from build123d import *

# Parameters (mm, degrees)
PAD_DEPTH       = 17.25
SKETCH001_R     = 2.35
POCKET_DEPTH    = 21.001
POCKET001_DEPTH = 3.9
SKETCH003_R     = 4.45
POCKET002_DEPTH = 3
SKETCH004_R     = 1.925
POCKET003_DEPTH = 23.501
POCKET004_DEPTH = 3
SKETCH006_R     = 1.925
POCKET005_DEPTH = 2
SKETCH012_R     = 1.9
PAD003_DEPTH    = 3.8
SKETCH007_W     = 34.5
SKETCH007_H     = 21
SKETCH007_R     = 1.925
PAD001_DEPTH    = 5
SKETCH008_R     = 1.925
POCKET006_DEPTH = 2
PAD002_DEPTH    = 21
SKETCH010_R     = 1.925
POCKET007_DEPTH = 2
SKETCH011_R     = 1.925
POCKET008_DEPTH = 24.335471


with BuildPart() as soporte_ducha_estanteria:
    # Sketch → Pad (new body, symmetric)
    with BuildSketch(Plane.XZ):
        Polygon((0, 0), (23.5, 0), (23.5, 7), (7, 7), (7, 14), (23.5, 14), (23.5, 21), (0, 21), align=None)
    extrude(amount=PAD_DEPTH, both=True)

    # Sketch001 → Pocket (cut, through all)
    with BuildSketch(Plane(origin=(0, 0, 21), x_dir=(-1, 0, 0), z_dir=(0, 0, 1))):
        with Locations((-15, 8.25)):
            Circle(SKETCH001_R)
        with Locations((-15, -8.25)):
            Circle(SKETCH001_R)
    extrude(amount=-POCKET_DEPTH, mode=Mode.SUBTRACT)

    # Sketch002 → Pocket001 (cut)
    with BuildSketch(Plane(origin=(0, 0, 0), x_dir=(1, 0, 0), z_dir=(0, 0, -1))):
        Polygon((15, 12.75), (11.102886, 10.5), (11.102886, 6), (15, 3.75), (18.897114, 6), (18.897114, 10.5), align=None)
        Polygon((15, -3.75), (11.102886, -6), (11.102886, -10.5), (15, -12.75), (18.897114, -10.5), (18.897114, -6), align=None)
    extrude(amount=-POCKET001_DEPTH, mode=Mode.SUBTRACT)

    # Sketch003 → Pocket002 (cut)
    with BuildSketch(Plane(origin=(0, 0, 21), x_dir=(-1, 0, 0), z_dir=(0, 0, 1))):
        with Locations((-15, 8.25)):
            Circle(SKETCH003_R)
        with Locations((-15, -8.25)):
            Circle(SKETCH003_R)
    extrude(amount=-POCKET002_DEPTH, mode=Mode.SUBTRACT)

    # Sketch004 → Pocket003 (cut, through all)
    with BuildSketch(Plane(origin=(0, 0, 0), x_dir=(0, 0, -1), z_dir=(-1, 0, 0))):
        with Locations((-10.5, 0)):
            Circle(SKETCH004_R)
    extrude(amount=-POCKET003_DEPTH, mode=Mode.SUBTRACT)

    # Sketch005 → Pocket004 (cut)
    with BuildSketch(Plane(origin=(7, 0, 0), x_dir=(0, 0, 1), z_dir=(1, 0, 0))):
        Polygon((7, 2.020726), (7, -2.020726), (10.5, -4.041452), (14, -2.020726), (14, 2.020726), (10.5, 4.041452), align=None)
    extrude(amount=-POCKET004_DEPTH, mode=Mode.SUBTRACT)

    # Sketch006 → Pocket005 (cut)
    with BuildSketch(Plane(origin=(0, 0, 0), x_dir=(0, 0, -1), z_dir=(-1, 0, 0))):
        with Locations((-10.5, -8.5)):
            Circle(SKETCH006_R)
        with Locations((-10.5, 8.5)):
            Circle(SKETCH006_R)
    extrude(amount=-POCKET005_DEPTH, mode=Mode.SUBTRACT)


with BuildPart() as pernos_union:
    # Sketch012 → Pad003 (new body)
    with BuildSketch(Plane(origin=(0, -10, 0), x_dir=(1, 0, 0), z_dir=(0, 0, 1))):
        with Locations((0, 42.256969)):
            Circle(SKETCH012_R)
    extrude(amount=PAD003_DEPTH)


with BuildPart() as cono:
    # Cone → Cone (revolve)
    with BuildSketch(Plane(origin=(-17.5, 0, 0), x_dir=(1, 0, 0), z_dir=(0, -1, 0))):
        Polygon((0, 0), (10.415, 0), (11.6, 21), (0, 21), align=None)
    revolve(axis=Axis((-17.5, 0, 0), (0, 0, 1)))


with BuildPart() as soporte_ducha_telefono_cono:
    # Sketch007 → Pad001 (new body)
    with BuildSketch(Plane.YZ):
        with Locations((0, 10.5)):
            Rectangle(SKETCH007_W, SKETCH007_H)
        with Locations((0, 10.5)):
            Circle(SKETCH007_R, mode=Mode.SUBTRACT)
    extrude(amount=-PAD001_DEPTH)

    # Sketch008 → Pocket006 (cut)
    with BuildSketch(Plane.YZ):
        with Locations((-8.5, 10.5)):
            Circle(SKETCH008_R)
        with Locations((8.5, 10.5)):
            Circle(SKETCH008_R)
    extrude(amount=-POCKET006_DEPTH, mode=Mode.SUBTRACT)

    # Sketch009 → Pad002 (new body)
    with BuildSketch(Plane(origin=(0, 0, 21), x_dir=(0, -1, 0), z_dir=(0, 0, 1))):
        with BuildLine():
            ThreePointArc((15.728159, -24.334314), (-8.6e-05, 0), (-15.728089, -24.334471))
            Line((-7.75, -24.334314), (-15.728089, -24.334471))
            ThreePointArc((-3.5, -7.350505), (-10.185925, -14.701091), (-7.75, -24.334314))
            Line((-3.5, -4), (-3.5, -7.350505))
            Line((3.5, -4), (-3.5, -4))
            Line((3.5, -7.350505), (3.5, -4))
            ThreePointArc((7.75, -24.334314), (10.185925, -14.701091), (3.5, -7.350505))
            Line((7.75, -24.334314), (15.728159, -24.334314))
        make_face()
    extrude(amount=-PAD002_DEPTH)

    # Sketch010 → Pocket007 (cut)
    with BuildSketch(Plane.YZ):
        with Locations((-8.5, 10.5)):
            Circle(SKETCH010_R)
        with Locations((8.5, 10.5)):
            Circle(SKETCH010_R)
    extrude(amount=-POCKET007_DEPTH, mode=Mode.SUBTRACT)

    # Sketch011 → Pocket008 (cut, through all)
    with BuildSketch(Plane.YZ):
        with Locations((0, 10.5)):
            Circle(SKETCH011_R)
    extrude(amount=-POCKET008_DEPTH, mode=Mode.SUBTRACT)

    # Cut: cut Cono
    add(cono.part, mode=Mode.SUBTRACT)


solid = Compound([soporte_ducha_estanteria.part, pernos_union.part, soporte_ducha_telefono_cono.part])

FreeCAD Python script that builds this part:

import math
import FreeCAD as App
import Part
import Sketcher
Q = App.Units.Quantity

doc = App.newDocument("Part")
body = doc.addObject("PartDesign::Body", "Body")

sketch1 = body.newObject("Sketcher::SketchObject", "Sketch")
sketch1.AttachmentSupport = (doc.getObject("XZ_Plane"), [""])
sketch1.MapMode = "FlatFace"
sketch1.addGeometry([
    Part.LineSegment(App.Vector(0, 0, 0), App.Vector(24, 0, 0)),
    Part.LineSegment(App.Vector(24, 0, 0), App.Vector(24, 7, 0)),
    Part.LineSegment(App.Vector(24, 7, 0), App.Vector(7, 7, 0)),
    Part.LineSegment(App.Vector(7, 7, 0), App.Vector(7, 14, 0)),
    Part.LineSegment(App.Vector(7, 14, 0), App.Vector(24, 14, 0)),
    Part.LineSegment(App.Vector(24, 14, 0), App.Vector(24, 21, 0)),
    Part.LineSegment(App.Vector(24, 21, 0), App.Vector(0, 21, 0)),
    Part.LineSegment(App.Vector(0, 21, 0), App.Vector(0, 0, 0)),
], False)
sketch1.addConstraint([
    Sketcher.Constraint("Coincident", 0, 2, 1, 1),
    Sketcher.Constraint("Coincident", 1, 2, 2, 1),
    Sketcher.Constraint("Coincident", 2, 2, 3, 1),
    Sketcher.Constraint("Coincident", 3, 2, 4, 1),
    Sketcher.Constraint("Coincident", 4, 2, 5, 1),
    Sketcher.Constraint("Coincident", 5, 2, 6, 1),
    Sketcher.Constraint("Coincident", 6, 2, 7, 1),
    Sketcher.Constraint("Coincident", 7, 2, 0, 1),
    Sketcher.Constraint("Horizontal", 0),
    Sketcher.Constraint("Vertical", 1),
    Sketcher.Constraint("Horizontal", 2),
    Sketcher.Constraint("Vertical", 3),
    Sketcher.Constraint("Horizontal", 4),
    Sketcher.Constraint("Vertical", 5),
    Sketcher.Constraint("Horizontal", 6),
    Sketcher.Constraint("Vertical", 7),
    Sketcher.Constraint("Coincident", 7, 2, -1, 1),
    Sketcher.Constraint("Vertical", 1, 2, 4, 2),
    Sketcher.Constraint("Equal", 1, 3),
    Sketcher.Constraint("Equal", 3, 5),
    Sketcher.Constraint("DistanceY", 1, 1, 1, 2, Q("7 mm")),
    Sketcher.Constraint("DistanceX", 0, 1, 0, 2, Q("23.5 mm")),
    Sketcher.Constraint("DistanceX", 2, 2, 2, 1, Q("16.5 mm")),
])
pad1 = body.newObject("PartDesign::Pad", "Pad")
pad1.Profile = sketch1
pad1.Length = 34.5
pad1.Midplane = True

sketch2 = body.newObject("Sketcher::SketchObject", "Sketch001")
sketch2.AttachmentSupport = (doc.getObject("XY_Plane"), [""])
sketch2.MapMode = "FlatFace"
sketch2.AttachmentOffset = App.Placement(App.Vector(0, 0, 21), App.Rotation())
sketch2.addGeometry([
    Part.Circle(App.Vector(15, -8.2, 0), App.Vector(0, 0, 1), 2.4),
    Part.Circle(App.Vector(15, 8.2, 0), App.Vector(0, 0, 1), 2.4),
], False)
sketch2.addConstraint([
    Sketcher.Constraint("Equal", 0, 1),
    Sketcher.Constraint("Symmetric", 0, 3, 1, 3, -1),
    Sketcher.Constraint("Diameter", 0, Q("4.7 mm")),
    Sketcher.Constraint("DistanceX", -1, 1, 0, 3, Q("15 mm")),
    Sketcher.Constraint("DistanceY", 0, 3, 1, 3, Q("16.5 mm")),
])
pocket1 = body.newObject("PartDesign::Pocket", "Pocket")
pocket1.Profile = sketch2
pocket1.Type = "ThroughAll"

sketch3 = body.newObject("Sketcher::SketchObject", "Sketch002")
sketch3.AttachmentSupport = (doc.getObject("XY_Plane"), [""])
sketch3.MapMode = "FlatFace"
sketch3.addGeometry([
    Part.LineSegment(App.Vector(15, -12.8, 0), App.Vector(11.1, -10.5, 0)),
    Part.LineSegment(App.Vector(11.1, -10.5, 0), App.Vector(11.1, -6, 0)),
    Part.LineSegment(App.Vector(11.1, -6, 0), App.Vector(15, -3.8, 0)),
    Part.LineSegment(App.Vector(15, -3.8, 0), App.Vector(18.9, -6, 0)),
    Part.LineSegment(App.Vector(18.9, -6, 0), App.Vector(18.9, -10.5, 0)),
    Part.LineSegment(App.Vector(18.9, -10.5, 0), App.Vector(15, -12.8, 0)),
    Part.LineSegment(App.Vector(15, 3.8, 0), App.Vector(11.1, 6, 0)),
    Part.LineSegment(App.Vector(11.1, 6, 0), App.Vector(11.1, 10.5, 0)),
    Part.LineSegment(App.Vector(11.1, 10.5, 0), App.Vector(15, 12.8, 0)),
    Part.LineSegment(App.Vector(15, 12.8, 0), App.Vector(18.9, 10.5, 0)),
    Part.LineSegment(App.Vector(18.9, 10.5, 0), App.Vector(18.9, 6, 0)),
    Part.LineSegment(App.Vector(18.9, 6, 0), App.Vector(15, 3.8, 0)),
], False)
sketch3.addConstraint([
    Sketcher.Constraint("Coincident", 0, 2, 1, 1),
    Sketcher.Constraint("Coincident", 1, 2, 2, 1),
    Sketcher.Constraint("Coincident", 2, 2, 3, 1),
    Sketcher.Constraint("Coincident", 3, 2, 4, 1),
    Sketcher.Constraint("Coincident", 4, 2, 5, 1),
    Sketcher.Constraint("Coincident", 5, 2, 0, 1),
    Sketcher.Constraint("Coincident", 6, 2, 7, 1),
    Sketcher.Constraint("Coincident", 7, 2, 8, 1),
    Sketcher.Constraint("Coincident", 8, 2, 9, 1),
    Sketcher.Constraint("Coincident", 9, 2, 10, 1),
    Sketcher.Constraint("Coincident", 10, 2, 11, 1),
    Sketcher.Constraint("Coincident", 11, 2, 6, 1),
    Sketcher.Constraint("Vertical", 1),
    Sketcher.Constraint("Vertical", 4),
    Sketcher.Constraint("Vertical", 7),
    Sketcher.Constraint("Vertical", 10),
    Sketcher.Constraint("Symmetric", 1, 2, 6, 2, -1),
    Sketcher.Constraint("Symmetric", 5, 2, 8, 2, -1),
    Sketcher.Constraint("Symmetric", 4, 2, 9, 2, -1),
    Sketcher.Constraint("Symmetric", 2, 2, 11, 2, -1),
    Sketcher.Constraint("Parallel", 0, 3),
    Sketcher.Constraint("Parallel", 2, 5),
    Sketcher.Constraint("Parallel", 3, 6),
    Sketcher.Constraint("Parallel", 5, 8),
    Sketcher.Constraint("Parallel", 8, 11),
    Sketcher.Constraint("Horizontal", 1, 2, 3, 2),
    Sketcher.Constraint("Horizontal", 0, 2, 4, 2),
    Sketcher.Constraint("Angle", 0, Q("149.999998 deg")),
    Sketcher.Constraint("DistanceY", 1, 1, 1, 2, Q("4.5 mm")),
    Sketcher.Constraint("DistanceY", 1, 2, -1, 1, Q("6 mm")),
    Sketcher.Constraint("DistanceX", -1, 1, 2, 2, Q("15 mm")),
    Sketcher.Constraint("DistanceY", 5, 2, 2, 2, Q("9 mm")),
])
pocket2 = body.newObject("PartDesign::Pocket", "Pocket001")
pocket2.Profile = sketch3
pocket2.Length = 3.9
pocket2.Reversed = True

sketch4 = body.newObject("Sketcher::SketchObject", "Sketch003")
sketch4.AttachmentSupport = (doc.getObject("XY_Plane"), [""])
sketch4.MapMode = "FlatFace"
sketch4.AttachmentOffset = App.Placement(App.Vector(0, 0, 21), App.Rotation())
sketch4.addGeometry([
    Part.Circle(App.Vector(15, -8.2, 0), App.Vector(0, 0, 1), 4.5),
    Part.Circle(App.Vector(15, 8.2, 0), App.Vector(0, 0, 1), 4.5),
], False)
sketch4.addConstraint([
    Sketcher.Constraint("Equal", 0, 1),
    Sketcher.Constraint("Symmetric", 0, 3, 1, 3, -1),
    Sketcher.Constraint("Diameter", 0, Q("8.9 mm")),
    Sketcher.Constraint("DistanceX", -1, 1, 0, 3, Q("15 mm")),
    Sketcher.Constraint("DistanceY", 0, 3, 1, 3, Q("16.5 mm")),
])
pocket3 = body.newObject("PartDesign::Pocket", "Pocket002")
pocket3.Profile = sketch4
pocket3.Length = 3

sketch5 = body.newObject("Sketcher::SketchObject", "Sketch004")
sketch5.AttachmentSupport = (doc.getObject("YZ_Plane"), [""])
sketch5.MapMode = "FlatFace"
sketch5.addGeometry(Part.Circle(App.Vector(0, 10.5, 0), App.Vector(0, 0, 1), 1.9), False)
sketch5.addConstraint([
    Sketcher.Constraint("PointOnObject", 0, 3, -2),
    Sketcher.Constraint("Diameter", 0, Q("3.85 mm")),
    Sketcher.Constraint("DistanceY", -1, 1, 0, 3, Q("10.5 mm")),
])
pocket4 = body.newObject("PartDesign::Pocket", "Pocket003")
pocket4.Profile = sketch5
pocket4.Type = "ThroughAll"
pocket4.Reversed = True

sketch6 = body.newObject("Sketcher::SketchObject", "Sketch005")
sketch6.AttachmentSupport = (doc.getObject("YZ_Plane"), [""])
sketch6.MapMode = "FlatFace"
sketch6.AttachmentOffset = App.Placement(App.Vector(0, 0, 7), App.Rotation())
sketch6.addGeometry([
    Part.LineSegment(App.Vector(-2, 7, 0), App.Vector(2, 7, 0)),
    Part.LineSegment(App.Vector(2, 7, 0), App.Vector(4, 10.5, 0)),
    Part.LineSegment(App.Vector(4, 10.5, 0), App.Vector(2, 14, 0)),
    Part.LineSegment(App.Vector(2, 14, 0), App.Vector(-2, 14, 0)),
    Part.LineSegment(App.Vector(-2, 14, 0), App.Vector(-4, 10.5, 0)),
    Part.LineSegment(App.Vector(-4, 10.5, 0), App.Vector(-2, 7, 0)),
], False)
sketch6.addConstraint([
    Sketcher.Constraint("Coincident", 0, 2, 1, 1),
    Sketcher.Constraint("Coincident", 1, 2, 2, 1),
    Sketcher.Constraint("Coincident", 2, 2, 3, 1),
    Sketcher.Constraint("Coincident", 3, 2, 4, 1),
    Sketcher.Constraint("Coincident", 4, 2, 5, 1),
    Sketcher.Constraint("Coincident", 5, 2, 0, 1),
    Sketcher.Constraint("Horizontal", 0),
    Sketcher.Constraint("Horizontal", 3),
    Sketcher.Constraint("Symmetric", 1, 2, 4, 2, -2),
    Sketcher.Constraint("Parallel", 1, 4),
    Sketcher.Constraint("Parallel", 2, 5),
    Sketcher.Constraint("Vertical", 0, 2, 2, 2),
    Sketcher.Constraint("Vertical", 3, 2, 5, 2),
    Sketcher.Constraint("Angle", 1, Q("59.999999 deg")),
    Sketcher.Constraint("DistanceY", -1, 1, 0, 2, Q("7 mm")),
    Sketcher.Constraint("DistanceY", -1, 1, 2, 2, Q("14 mm")),
    Sketcher.Constraint("DistanceX", 0, 1, 0, 2, Q("4.041452 mm")),
])
pocket5 = body.newObject("PartDesign::Pocket", "Pocket004")
pocket5.Profile = sketch6
pocket5.Length = 3

sketch7 = body.newObject("Sketcher::SketchObject", "Sketch006")
sketch7.AttachmentSupport = (doc.getObject("YZ_Plane"), [""])
sketch7.MapMode = "FlatFace"
sketch7.addGeometry([
    Part.Circle(App.Vector(8.5, 10.5, 0), App.Vector(0, 0, 1), 1.9),
    Part.Circle(App.Vector(-8.5, 10.5, 0), App.Vector(0, 0, 1), 1.9),
], False)
sketch7.addConstraint([
    Sketcher.Constraint("Equal", 0, 1),
    Sketcher.Constraint("Symmetric", 0, 3, 1, 3, -2),
    Sketcher.Constraint("Diameter", 0, Q("3.85 mm")),
    Sketcher.Constraint("DistanceX", 1, 3, 0, 3, Q("17 mm")),
    Sketcher.Constraint("DistanceY", -1, 1, 0, 3, Q("10.5 mm")),
])
pocket6 = body.newObject("PartDesign::Pocket", "Pocket005")
pocket6.Profile = sketch7
pocket6.Length = 2
pocket6.Reversed = True
body2 = doc.addObject("PartDesign::Body", "Body001")

sketch8 = body2.newObject("Sketcher::SketchObject", "Sketch007")
sketch8.AttachmentSupport = (doc.getObject("XY_Plane001"), [""])
sketch8.MapMode = "FlatFace"
sketch8.addGeometry(Part.Circle(App.Vector(0, 32.3, 0), App.Vector(0, 0, 1), 1.9), False)
sketch8.addConstraint([
    Sketcher.Constraint("PointOnObject", 0, 3, -2),
    Sketcher.Constraint("Diameter", 0, Q("3.8 mm")),
    Sketcher.Constraint("DistanceY", -1, 1, 0, 3, Q("32.256969 mm")),
])
pad2 = body2.newObject("PartDesign::Pad", "Pad001")
pad2.Profile = sketch8
pad2.Length = 3.8
body3 = doc.addObject("PartDesign::Body", "Body002")

sketch9 = body3.newObject("Sketcher::SketchObject", "Sketch008")
sketch9.AttachmentSupport = (doc.getObject("XZ_Plane002"), [""])
sketch9.MapMode = "FlatFace"
sketch9.addGeometry([
    Part.LineSegment(App.Vector(-18, 0, 0), App.Vector(-7, 0, 0)),
    Part.LineSegment(App.Vector(-7, 0, 0), App.Vector(-6, 21, 0)),
    Part.LineSegment(App.Vector(-6, 21, 0), App.Vector(-18, 21, 0)),
    Part.LineSegment(App.Vector(-18, 21, 0), App.Vector(-18, 0, 0)),
], False)
sketch9.addGeometry(Part.LineSegment(App.Vector(-18, 0, 0), App.Vector(-18, 21, 0)), True)
sketch9.addConstraint([
    Sketcher.Constraint("Coincident", 0, 2, 1, 1),
    Sketcher.Constraint("Coincident", 1, 2, 2, 1),
    Sketcher.Constraint("Coincident", 2, 2, 3, 1),
    Sketcher.Constraint("Coincident", 3, 2, 0, 1),
    Sketcher.Constraint("Horizontal", 0),
    Sketcher.Constraint("Horizontal", 2),
    Sketcher.Constraint("Vertical", 3),
    Sketcher.Constraint("Vertical", 4),
    Sketcher.Constraint("Coincident", 4, 1, 3, 2),
    Sketcher.Constraint("PointOnObject", 0, 2, -1),
    Sketcher.Constraint("Horizontal", 1, 2, 4, 2),
    Sketcher.Constraint("DistanceY", 3, 2, 3, 1, Q("21 mm")),
    Sketcher.Constraint("DistanceX", 2, 2, 2, 1, Q("11.6 mm")),
    Sketcher.Constraint("DistanceX", 1, 2, -1, 1, Q("5.9 mm")),
    Sketcher.Constraint("DistanceX", 0, 1, 0, 2, Q("10.415 mm")),
])
revolution = body3.newObject("PartDesign::Revolution", "Revolution")
revolution.Profile = sketch9
revolution.ReferenceAxis = (sketch9, ["Axis0"])
revolution.Angle = 360
body4 = doc.addObject("PartDesign::Body", "Body003")

sketch10 = body4.newObject("Sketcher::SketchObject", "Sketch009")
sketch10.AttachmentSupport = (doc.getObject("YZ_Plane003"), [""])
sketch10.MapMode = "FlatFace"
sketch10.addGeometry([
    Part.LineSegment(App.Vector(-17.2, 21, 0), App.Vector(-17.2, 0, 0)),
    Part.LineSegment(App.Vector(-17.2, 0, 0), App.Vector(17.2, 0, 0)),
    Part.LineSegment(App.Vector(17.2, 0, 0), App.Vector(17.2, 21, 0)),
    Part.LineSegment(App.Vector(17.2, 21, 0), App.Vector(-17.2, 21, 0)),
    Part.Circle(App.Vector(0, 10.5, 0), App.Vector(0, 0, 1), 1.9),
], False)
sketch10.addConstraint([
    Sketcher.Constraint("Coincident", 0, 2, 1, 1),
    Sketcher.Constraint("Coincident", 1, 2, 2, 1),
    Sketcher.Constraint("Coincident", 2, 2, 3, 1),
    Sketcher.Constraint("Coincident", 3, 2, 0, 1),
    Sketcher.Constraint("Vertical", 0),
    Sketcher.Constraint("Horizontal", 1),
    Sketcher.Constraint("Vertical", 2),
    Sketcher.Constraint("Horizontal", 3),
    Sketcher.Constraint("Symmetric", 0, 2, 1, 2, -1, 1),
    Sketcher.Constraint("PointOnObject", 4, 3, -2),
    Sketcher.Constraint("Diameter", 4, Q("3.85 mm")),
    Sketcher.Constraint("DistanceY", 0, 2, 0, 1, Q("21 mm")),
    Sketcher.Constraint("DistanceX", 1, 1, 1, 2, Q("34.5 mm")),
    Sketcher.Constraint("DistanceY", -1, 1, 4, 3, Q("10.5 mm")),
])
pad3 = body4.newObject("PartDesign::Pad", "Pad002")
pad3.Profile = sketch10
pad3.Length = 5
pad3.Reversed = True

sketch11 = body4.newObject("Sketcher::SketchObject", "Sketch010")
sketch11.AttachmentSupport = (doc.getObject("YZ_Plane003"), [""])
sketch11.MapMode = "FlatFace"
sketch11.addGeometry([
    Part.Circle(App.Vector(-8.5, 10.5, 0), App.Vector(0, 0, 1), 1.9),
    Part.Circle(App.Vector(8.5, 10.5, 0), App.Vector(0, 0, 1), 1.9),
], False)
sketch11.addConstraint([
    Sketcher.Constraint("Equal", 0, 1),
    Sketcher.Constraint("Symmetric", 0, 3, 1, 3, -2),
    Sketcher.Constraint("Diameter", 0, Q("3.85 mm")),
    Sketcher.Constraint("DistanceX", 0, 3, 1, 3, Q("17 mm")),
    Sketcher.Constraint("DistanceY", -1, 1, 0, 3, Q("10.5 mm")),
])
pocket7 = body4.newObject("PartDesign::Pocket", "Pocket006")
pocket7.Profile = sketch11
pocket7.Length = 2

sketch12 = body4.newObject("Sketcher::SketchObject", "Sketch011")
sketch12.AttachmentSupport = (doc.getObject("XY_Plane003"), [""])
sketch12.MapMode = "FlatFace"
sketch12.AttachmentOffset = App.Placement(App.Vector(0, 0, 21), App.Rotation())
sketch12.addGeometry([
    Part.ArcOfCircle(Part.Circle(App.Vector(-17.3, 0, 0), App.Vector(0, 0, 1), 17.3), math.radians(-114), math.radians(114)),
    Part.LineSegment(App.Vector(-24.3, 15.7, 0), App.Vector(-24.3, 7.8, 0)),
    Part.ArcOfCircle(Part.Circle(App.Vector(-17.3, 0, 0), App.Vector(0, 0, 1), 10.5), math.radians(19), math.radians(132)),
    Part.LineSegment(App.Vector(-7.4, 3.5, 0), App.Vector(-4, 3.5, 0)),
    Part.LineSegment(App.Vector(-4, 3.5, 0), App.Vector(-4, -3.5, 0)),
    Part.LineSegment(App.Vector(-4, -3.5, 0), App.Vector(-7.4, -3.5, 0)),
    Part.ArcOfCircle(Part.Circle(App.Vector(-17.3, 0, 0), App.Vector(0, 0, 1), 10.5), math.radians(-132), math.radians(-19)),
    Part.LineSegment(App.Vector(-24.3, -7.8, 0), App.Vector(-24.3, -15.7, 0)),
], False)
sketch12.addConstraint([
    Sketcher.Constraint("Coincident", 0, 2, 1, 1),
    Sketcher.Constraint("Coincident", 1, 2, 2, 2),
    Sketcher.Constraint("Coincident", 2, 1, 3, 1),
    Sketcher.Constraint("Coincident", 3, 2, 4, 1),
    Sketcher.Constraint("Coincident", 4, 2, 5, 1),
    Sketcher.Constraint("Coincident", 5, 2, 6, 2),
    Sketcher.Constraint("Coincident", 6, 1, 7, 1),
    Sketcher.Constraint("Coincident", 7, 2, 0, 1),
    Sketcher.Constraint("Horizontal", 3),
    Sketcher.Constraint("Vertical", 4),
    Sketcher.Constraint("Horizontal", 5),
    Sketcher.Constraint("Vertical", 7),
    Sketcher.Constraint("Coincident", 2, 3, 0, 3),
    Sketcher.Constraint("Coincident", 6, 3, 0, 3),
    Sketcher.Constraint("Equal", 2, 6),
    Sketcher.Constraint("Symmetric", 2, 1, 5, 2, -1),
    Sketcher.Constraint("Vertical", 1, 2, 6, 1),
    Sketcher.Constraint("Radius", 2, Q("10.5 mm")),
    Sketcher.Constraint("DistanceY", 4, 2, 4, 1, Q("7 mm")),
    Sketcher.Constraint("Radius", 0, Q("17.25 mm")),
    Sketcher.Constraint("DistanceX", 3, 2, -1, 1, Q("4 mm")),
    Sketcher.Constraint("DistanceY", 6, 1, 1, 2, Q("15.5 mm")),
    Sketcher.Constraint("DistanceX", 0, 3, -1, 1, Q("17.25 mm")),
    Sketcher.Constraint("Distance", 1, Q("7.978089 mm")),
])
pad4 = body4.newObject("PartDesign::Pad", "Pad003")
pad4.Profile = sketch12
pad4.Length = 21
pad4.Reversed = True

sketch13 = body4.newObject("Sketcher::SketchObject", "Sketch012")
sketch13.AttachmentSupport = (doc.getObject("YZ_Plane003"), [""])
sketch13.MapMode = "FlatFace"
sketch13.addGeometry([
    Part.Circle(App.Vector(-8.5, 10.5, 0), App.Vector(0, 0, 1), 1.9),
    Part.Circle(App.Vector(8.5, 10.5, 0), App.Vector(0, 0, 1), 1.9),
], False)
sketch13.addConstraint([
    Sketcher.Constraint("Equal", 0, 1),
    Sketcher.Constraint("Symmetric", 0, 3, 1, 3, -2),
    Sketcher.Constraint("Diameter", 0, Q("3.85 mm")),
    Sketcher.Constraint("DistanceX", 0, 3, 1, 3, Q("17 mm")),
    Sketcher.Constraint("DistanceY", -1, 1, 0, 3, Q("10.5 mm")),
])
pocket8 = body4.newObject("PartDesign::Pocket", "Pocket007")
pocket8.Profile = sketch13
pocket8.Length = 2

sketch14 = body4.newObject("Sketcher::SketchObject", "Sketch013")
sketch14.AttachmentSupport = (doc.getObject("YZ_Plane003"), [""])
sketch14.MapMode = "FlatFace"
sketch14.addGeometry(Part.Circle(App.Vector(0, 10.5, 0), App.Vector(0, 0, 1), 1.9), False)
sketch14.addConstraint([
    Sketcher.Constraint("PointOnObject", 0, 3, -2),
    Sketcher.Constraint("Diameter", 0, Q("3.85 mm")),
    Sketcher.Constraint("DistanceY", -1, 1, 0, 3, Q("10.5 mm")),
])
pocket9 = body4.newObject("PartDesign::Pocket", "Pocket008")
pocket9.Profile = sketch14
pocket9.Type = "ThroughAll"
doc.recompute()

boolean = body4.newObject("PartDesign::Boolean", "Boolean")
boolean.Type = "Cut"
boolean.addObjects([body3])

doc.recompute()
